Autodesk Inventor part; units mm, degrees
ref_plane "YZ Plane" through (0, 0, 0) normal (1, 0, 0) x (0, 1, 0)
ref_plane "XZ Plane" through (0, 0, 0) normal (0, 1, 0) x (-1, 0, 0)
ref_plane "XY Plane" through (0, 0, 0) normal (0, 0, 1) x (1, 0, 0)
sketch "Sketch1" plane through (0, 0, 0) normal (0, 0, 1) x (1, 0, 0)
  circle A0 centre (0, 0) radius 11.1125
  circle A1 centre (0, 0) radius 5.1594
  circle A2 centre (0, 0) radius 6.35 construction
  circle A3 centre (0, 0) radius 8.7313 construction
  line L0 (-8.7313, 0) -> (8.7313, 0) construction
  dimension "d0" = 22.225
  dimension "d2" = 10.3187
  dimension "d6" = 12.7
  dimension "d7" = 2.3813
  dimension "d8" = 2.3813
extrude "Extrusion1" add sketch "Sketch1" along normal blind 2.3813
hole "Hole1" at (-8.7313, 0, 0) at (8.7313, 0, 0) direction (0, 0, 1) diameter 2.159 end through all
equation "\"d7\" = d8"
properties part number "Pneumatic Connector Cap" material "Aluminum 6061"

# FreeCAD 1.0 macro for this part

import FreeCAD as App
import Part
import Sketcher

V = App.Vector
Q = App.Units.Quantity

doc = App.newDocument("Part")
body = doc.addObject("PartDesign::Body", "Body")

# Sketch on XY plane
sketch1 = body.newObject("Sketcher::SketchObject", "Sketch")
sketch1.AttachmentSupport = (doc.getObject("XY_Plane"), [""])
sketch1.MapMode = "FlatFace"
sketch1.addGeometry([
    Part.Circle(V(0, 0, 0), V(0, 0, 1), 11),
    Part.Circle(V(0, 0, 0), V(0, 0, 1), 5),
], False)
sketch1.addConstraint([
    Sketcher.Constraint("Coincident", 0, 3, -1, 1),
    Sketcher.Constraint("Coincident", 1, 3, -1, 1),
    Sketcher.Constraint("Diameter", 0, Q("0.875 in")),
    Sketcher.Constraint("Diameter", 1, Q("0.406252 in")),
])
pad1 = body.newObject("PartDesign::Pad", "Pad")
pad1.Profile = sketch1
pad1.Length = Q("0.093752 in")

# Sketch on XY plane
sketch2 = body.newObject("Sketcher::SketchObject", "Sketch001")
sketch2.AttachmentSupport = (doc.getObject("XY_Plane"), [""])
sketch2.MapMode = "FlatFace"
sketch2.addGeometry([
    Part.Circle(V(-8.7, 0, 0), V(0, 0, 1), 1.1),
    Part.Circle(V(8.7, 0, 0), V(0, 0, 1), 1.1),
], False)
sketch2.addConstraint([
    Sketcher.Constraint("Equal", 0, 1),
    Sketcher.Constraint("Symmetric", 0, 3, 1, 3, -1, 1),
    Sketcher.Constraint("PointOnObject", 0, 3, -1),
    Sketcher.Constraint("Diameter", 0, Q("0.085 in")),
    Sketcher.Constraint("DistanceX", 0, 3, -1, 1, Q("0.343752 in")),
])
doc.recompute()
hole = body.newObject("PartDesign::Hole", "Hole")
hole.Profile = sketch2
hole.ThreadType = "None"
hole.Diameter = Q("0.085 in")
hole.DepthType = "ThroughAll"
hole.Reversed = True

doc.recompute()
